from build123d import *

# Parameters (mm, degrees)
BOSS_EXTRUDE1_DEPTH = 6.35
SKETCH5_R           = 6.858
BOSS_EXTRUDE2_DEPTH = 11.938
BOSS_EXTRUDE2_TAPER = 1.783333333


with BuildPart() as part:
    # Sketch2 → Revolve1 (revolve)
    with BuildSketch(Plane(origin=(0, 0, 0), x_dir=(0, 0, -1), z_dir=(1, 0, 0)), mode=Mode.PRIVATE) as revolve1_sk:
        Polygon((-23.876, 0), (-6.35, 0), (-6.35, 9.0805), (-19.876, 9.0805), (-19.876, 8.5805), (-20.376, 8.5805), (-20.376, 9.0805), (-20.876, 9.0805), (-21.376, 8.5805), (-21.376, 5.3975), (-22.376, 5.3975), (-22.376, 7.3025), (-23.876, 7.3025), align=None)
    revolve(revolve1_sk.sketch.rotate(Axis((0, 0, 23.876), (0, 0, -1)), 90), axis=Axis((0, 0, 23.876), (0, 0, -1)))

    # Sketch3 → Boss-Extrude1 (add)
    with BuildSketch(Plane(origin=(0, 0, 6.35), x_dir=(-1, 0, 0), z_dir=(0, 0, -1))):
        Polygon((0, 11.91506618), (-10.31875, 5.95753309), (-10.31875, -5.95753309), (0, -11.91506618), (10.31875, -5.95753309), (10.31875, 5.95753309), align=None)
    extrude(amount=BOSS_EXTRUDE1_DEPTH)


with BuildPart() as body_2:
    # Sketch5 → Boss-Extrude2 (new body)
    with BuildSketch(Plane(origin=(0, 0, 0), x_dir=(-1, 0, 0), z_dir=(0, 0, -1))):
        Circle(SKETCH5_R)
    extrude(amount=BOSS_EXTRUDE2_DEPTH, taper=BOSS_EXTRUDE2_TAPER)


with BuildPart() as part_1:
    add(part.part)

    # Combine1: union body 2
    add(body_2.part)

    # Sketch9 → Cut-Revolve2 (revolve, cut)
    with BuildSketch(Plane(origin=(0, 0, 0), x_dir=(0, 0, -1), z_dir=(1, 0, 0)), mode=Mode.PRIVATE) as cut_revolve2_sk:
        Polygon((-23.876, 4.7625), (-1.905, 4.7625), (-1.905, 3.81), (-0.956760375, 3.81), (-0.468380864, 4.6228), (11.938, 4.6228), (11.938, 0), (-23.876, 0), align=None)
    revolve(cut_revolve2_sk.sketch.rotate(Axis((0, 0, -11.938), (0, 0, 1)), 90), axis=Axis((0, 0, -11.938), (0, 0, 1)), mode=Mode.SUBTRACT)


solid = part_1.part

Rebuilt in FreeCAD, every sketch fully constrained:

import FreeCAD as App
import Part
import Sketcher
from FreeCAD import Vector
Q = App.Units.Quantity


def add_polygon(sketch, points):
    """Adds a closed chain of lines whose ends are joined by coincident constraints."""
    first, n = sketch.GeometryCount, len(points)
    for a, b in zip(points, points[1:] + points[:1]):
        sketch.addGeometry(Part.LineSegment(App.Vector(*a, 0), App.Vector(*b, 0)), False)
    for i in range(n):
        sketch.addConstraint(Sketcher.Constraint("Coincident", first + i, 2, first + (i + 1) % n, 1))

doc = App.newDocument("Part")
body = doc.addObject("PartDesign::Body", "Body")

sketch1 = body.newObject("Sketcher::SketchObject", "Sketch")
sketch1.AttachmentSupport = (doc.getObject("YZ_Plane"), [""])
sketch1.MapMode = "FlatFace"
add_polygon(sketch1, [(0, 23.9), (0, 6.3), (9.1, 6.3), (9.1, 19.9), (8.6, 19.9), (8.6, 20.4), (9.1, 20.4), (9.1, 20.9), (8.6, 21.4), (5.4, 21.4), (5.4, 22.4), (7.3, 22.4), (7.3, 23.9)])
sketch1.addConstraint(Sketcher.Constraint("Vertical", 0))
sketch1.addConstraint(Sketcher.Constraint("Horizontal", 1))
sketch1.addConstraint(Sketcher.Constraint("Vertical", 2))
sketch1.addConstraint(Sketcher.Constraint("Horizontal", 3))
sketch1.addConstraint(Sketcher.Constraint("Vertical", 4))
sketch1.addConstraint(Sketcher.Constraint("Horizontal", 5))
sketch1.addConstraint(Sketcher.Constraint("Vertical", 6))
sketch1.addConstraint(Sketcher.Constraint("Horizontal", 8))
sketch1.addConstraint(Sketcher.Constraint("Vertical", 9))
sketch1.addConstraint(Sketcher.Constraint("Horizontal", 10))
sketch1.addConstraint(Sketcher.Constraint("Vertical", 11))
sketch1.addConstraint(Sketcher.Constraint("Horizontal", 12))
sketch1.addConstraint(Sketcher.Constraint("PointOnObject", 0, 2, -2))
sketch1.addConstraint(Sketcher.Constraint("Vertical", 2, 2, 5, 2))
sketch1.addConstraint(Sketcher.Constraint("Vertical", 4, 2, 7, 2))
sketch1.addConstraint(Sketcher.Constraint("Equal", 5, 4))
sketch1.addConstraint(Sketcher.Constraint("Equal", 4, 6))
sketch1.addConstraint(Sketcher.Constraint("Angle", 7, Q("135 deg")))
sketch1.addConstraint(Sketcher.Constraint("DistanceY", 0, 2, 0, 1, Q("0.69 in")))
sketch1.addConstraint(Sketcher.Constraint("DistanceX", 10, 1, 10, 2, Q("0.075 in")))
sketch1.addConstraint(Sketcher.Constraint("DistanceY", -1, 1, 0, 2, Q("0.25 in")))
sketch1.addConstraint(Sketcher.Constraint("DistanceX", 10, 2, 6, 2, Q("0.07 in")))
sketch1.addConstraint(Sketcher.Constraint("DistanceX", 1, 1, 1, 2, Q("0.3575 in")))
sketch1.addConstraint(Sketcher.Constraint("DistanceX", 3, 2, 3, 1, Q("0.5 mm")))
sketch1.addConstraint(Sketcher.Constraint("DistanceY", 2, 1, 2, 2, Q("13.526 mm")))
sketch1.addConstraint(Sketcher.Constraint("DistanceY", 9, 1, 9, 2, Q("1 mm")))
revolution = body.newObject("PartDesign::Revolution", "Revolution")
revolution.Profile = sketch1
revolution.ReferenceAxis = (sketch1, ["V_Axis"])
revolution.Angle = 360

sketch2 = body.newObject("Sketcher::SketchObject", "Sketch001")
sketch2.AttachmentSupport = (doc.getObject("XY_Plane"), [""])
sketch2.MapMode = "FlatFace"
sketch2.AttachmentOffset = App.Placement(Vector(0, 0, 0.25 * 25.4), App.Rotation())
add_polygon(sketch2, [(0, 12), (10, 6), (10, -6), (0, -12), (-10, -6), (-10, 6)])
sketch2.addConstraint(Sketcher.Constraint("Vertical", 1))
sketch2.addConstraint(Sketcher.Constraint("Vertical", 4))
sketch2.addConstraint(Sketcher.Constraint("Symmetric", 0, 2, 3, 2, -1, 1))
sketch2.addConstraint(Sketcher.Constraint("Symmetric", 2, 2, 5, 2, -1, 1))
sketch2.addConstraint(Sketcher.Constraint("PointOnObject", 2, 2, -2))
sketch2.addConstraint(Sketcher.Constraint("Parallel", 2, 5))
sketch2.addConstraint(Sketcher.Constraint("Horizontal", 1, 2, 3, 2))
sketch2.addConstraint(Sketcher.Constraint("Angle", 0, Q("-30 deg")))
sketch2.addConstraint(Sketcher.Constraint("DistanceX", -1, 1, 0, 2, Q("0.40625 in")))
sketch2.addConstraint(Sketcher.Constraint("DistanceY", 2, 2, 0, 2, Q("17.872599 mm")))
pad1 = body.newObject("PartDesign::Pad", "Pad")
pad1.Profile = sketch2
pad1.Length = Q("0.25 in")
pad1.Reversed = True
body2 = doc.addObject("PartDesign::Body", "Body001")

sketch3 = body2.newObject("Sketcher::SketchObject", "Sketch002")
sketch3.AttachmentSupport = (doc.getObject("XY_Plane001"), [""])
sketch3.MapMode = "FlatFace"
sketch3.addGeometry(Part.Circle(Vector(0, 0, 0), Vector(0, 0, 1), 7), False)
sketch3.addConstraint(Sketcher.Constraint("Coincident", 0, 3, -1, 1))
sketch3.addConstraint(Sketcher.Constraint("Diameter", 0, Q("0.54 in")))
pad2 = body2.newObject("PartDesign::Pad", "Pad001")
pad2.Profile = sketch3
pad2.Length = Q("0.47 in")
pad2.Reversed = True
pad2.TaperAngle = -1.783333
doc.recompute()

boolean = body.newObject("PartDesign::Boolean", "Boolean")
boolean.Type = "Fuse"
boolean.addObjects([body2])

sketch4 = body.newObject("Sketcher::SketchObject", "Sketch003")
sketch4.AttachmentSupport = (doc.getObject("YZ_Plane"), [""])
sketch4.MapMode = "FlatFace"
add_polygon(sketch4, [(4.8, 1.9), (4.8, 23.9), (0, 23.9), (0, -11.9), (4.6, -11.9), (4.6, 0.5), (3.8, 1), (3.8, 1.9)])
sketch4.addConstraint(Sketcher.Constraint("Vertical", 0))
sketch4.addConstraint(Sketcher.Constraint("Horizontal", 1))
sketch4.addConstraint(Sketcher.Constraint("Vertical", 2))
sketch4.addConstraint(Sketcher.Constraint("Horizontal", 3))
sketch4.addConstraint(Sketcher.Constraint("Vertical", 4))
sketch4.addConstraint(Sketcher.Constraint("Vertical", 6))
sketch4.addConstraint(Sketcher.Constraint("Horizontal", 7))
sketch4.addConstraint(Sketcher.Constraint("PointOnObject", 1, 2, -2))
sketch4.addConstraint(Sketcher.Constraint("Angle", 5, Q("149 deg")))
sketch4.addConstraint(Sketcher.Constraint("DistanceY", 2, 2, 2, 1, Q("1.41 in")))
sketch4.addConstraint(Sketcher.Constraint("DistanceX", 1, 2, 1, 1, Q("0.1875 in")))
sketch4.addConstraint(Sketcher.Constraint("DistanceX", 3, 1, 3, 2, Q("0.182 in")))
sketch4.addConstraint(Sketcher.Constraint("DistanceY", 0, 1, 0, 2, Q("0.865 in")))
sketch4.addConstraint(Sketcher.Constraint("DistanceY", -1, 1, 0, 2, Q("0.94 in")))
sketch4.addConstraint(Sketcher.Constraint("DistanceX", -1, 1, 5, 2, Q("0.15 in")))
sketch4.addConstraint(Sketcher.Constraint("DistanceY", 4, 1, 4, 2, Q("12.406381 mm")))
groove = body.newObject("PartDesign::Groove", "Groove")
groove.Profile = sketch4
groove.ReferenceAxis = (sketch4, ["V_Axis"])
groove.Angle = 360

doc.recompute()
